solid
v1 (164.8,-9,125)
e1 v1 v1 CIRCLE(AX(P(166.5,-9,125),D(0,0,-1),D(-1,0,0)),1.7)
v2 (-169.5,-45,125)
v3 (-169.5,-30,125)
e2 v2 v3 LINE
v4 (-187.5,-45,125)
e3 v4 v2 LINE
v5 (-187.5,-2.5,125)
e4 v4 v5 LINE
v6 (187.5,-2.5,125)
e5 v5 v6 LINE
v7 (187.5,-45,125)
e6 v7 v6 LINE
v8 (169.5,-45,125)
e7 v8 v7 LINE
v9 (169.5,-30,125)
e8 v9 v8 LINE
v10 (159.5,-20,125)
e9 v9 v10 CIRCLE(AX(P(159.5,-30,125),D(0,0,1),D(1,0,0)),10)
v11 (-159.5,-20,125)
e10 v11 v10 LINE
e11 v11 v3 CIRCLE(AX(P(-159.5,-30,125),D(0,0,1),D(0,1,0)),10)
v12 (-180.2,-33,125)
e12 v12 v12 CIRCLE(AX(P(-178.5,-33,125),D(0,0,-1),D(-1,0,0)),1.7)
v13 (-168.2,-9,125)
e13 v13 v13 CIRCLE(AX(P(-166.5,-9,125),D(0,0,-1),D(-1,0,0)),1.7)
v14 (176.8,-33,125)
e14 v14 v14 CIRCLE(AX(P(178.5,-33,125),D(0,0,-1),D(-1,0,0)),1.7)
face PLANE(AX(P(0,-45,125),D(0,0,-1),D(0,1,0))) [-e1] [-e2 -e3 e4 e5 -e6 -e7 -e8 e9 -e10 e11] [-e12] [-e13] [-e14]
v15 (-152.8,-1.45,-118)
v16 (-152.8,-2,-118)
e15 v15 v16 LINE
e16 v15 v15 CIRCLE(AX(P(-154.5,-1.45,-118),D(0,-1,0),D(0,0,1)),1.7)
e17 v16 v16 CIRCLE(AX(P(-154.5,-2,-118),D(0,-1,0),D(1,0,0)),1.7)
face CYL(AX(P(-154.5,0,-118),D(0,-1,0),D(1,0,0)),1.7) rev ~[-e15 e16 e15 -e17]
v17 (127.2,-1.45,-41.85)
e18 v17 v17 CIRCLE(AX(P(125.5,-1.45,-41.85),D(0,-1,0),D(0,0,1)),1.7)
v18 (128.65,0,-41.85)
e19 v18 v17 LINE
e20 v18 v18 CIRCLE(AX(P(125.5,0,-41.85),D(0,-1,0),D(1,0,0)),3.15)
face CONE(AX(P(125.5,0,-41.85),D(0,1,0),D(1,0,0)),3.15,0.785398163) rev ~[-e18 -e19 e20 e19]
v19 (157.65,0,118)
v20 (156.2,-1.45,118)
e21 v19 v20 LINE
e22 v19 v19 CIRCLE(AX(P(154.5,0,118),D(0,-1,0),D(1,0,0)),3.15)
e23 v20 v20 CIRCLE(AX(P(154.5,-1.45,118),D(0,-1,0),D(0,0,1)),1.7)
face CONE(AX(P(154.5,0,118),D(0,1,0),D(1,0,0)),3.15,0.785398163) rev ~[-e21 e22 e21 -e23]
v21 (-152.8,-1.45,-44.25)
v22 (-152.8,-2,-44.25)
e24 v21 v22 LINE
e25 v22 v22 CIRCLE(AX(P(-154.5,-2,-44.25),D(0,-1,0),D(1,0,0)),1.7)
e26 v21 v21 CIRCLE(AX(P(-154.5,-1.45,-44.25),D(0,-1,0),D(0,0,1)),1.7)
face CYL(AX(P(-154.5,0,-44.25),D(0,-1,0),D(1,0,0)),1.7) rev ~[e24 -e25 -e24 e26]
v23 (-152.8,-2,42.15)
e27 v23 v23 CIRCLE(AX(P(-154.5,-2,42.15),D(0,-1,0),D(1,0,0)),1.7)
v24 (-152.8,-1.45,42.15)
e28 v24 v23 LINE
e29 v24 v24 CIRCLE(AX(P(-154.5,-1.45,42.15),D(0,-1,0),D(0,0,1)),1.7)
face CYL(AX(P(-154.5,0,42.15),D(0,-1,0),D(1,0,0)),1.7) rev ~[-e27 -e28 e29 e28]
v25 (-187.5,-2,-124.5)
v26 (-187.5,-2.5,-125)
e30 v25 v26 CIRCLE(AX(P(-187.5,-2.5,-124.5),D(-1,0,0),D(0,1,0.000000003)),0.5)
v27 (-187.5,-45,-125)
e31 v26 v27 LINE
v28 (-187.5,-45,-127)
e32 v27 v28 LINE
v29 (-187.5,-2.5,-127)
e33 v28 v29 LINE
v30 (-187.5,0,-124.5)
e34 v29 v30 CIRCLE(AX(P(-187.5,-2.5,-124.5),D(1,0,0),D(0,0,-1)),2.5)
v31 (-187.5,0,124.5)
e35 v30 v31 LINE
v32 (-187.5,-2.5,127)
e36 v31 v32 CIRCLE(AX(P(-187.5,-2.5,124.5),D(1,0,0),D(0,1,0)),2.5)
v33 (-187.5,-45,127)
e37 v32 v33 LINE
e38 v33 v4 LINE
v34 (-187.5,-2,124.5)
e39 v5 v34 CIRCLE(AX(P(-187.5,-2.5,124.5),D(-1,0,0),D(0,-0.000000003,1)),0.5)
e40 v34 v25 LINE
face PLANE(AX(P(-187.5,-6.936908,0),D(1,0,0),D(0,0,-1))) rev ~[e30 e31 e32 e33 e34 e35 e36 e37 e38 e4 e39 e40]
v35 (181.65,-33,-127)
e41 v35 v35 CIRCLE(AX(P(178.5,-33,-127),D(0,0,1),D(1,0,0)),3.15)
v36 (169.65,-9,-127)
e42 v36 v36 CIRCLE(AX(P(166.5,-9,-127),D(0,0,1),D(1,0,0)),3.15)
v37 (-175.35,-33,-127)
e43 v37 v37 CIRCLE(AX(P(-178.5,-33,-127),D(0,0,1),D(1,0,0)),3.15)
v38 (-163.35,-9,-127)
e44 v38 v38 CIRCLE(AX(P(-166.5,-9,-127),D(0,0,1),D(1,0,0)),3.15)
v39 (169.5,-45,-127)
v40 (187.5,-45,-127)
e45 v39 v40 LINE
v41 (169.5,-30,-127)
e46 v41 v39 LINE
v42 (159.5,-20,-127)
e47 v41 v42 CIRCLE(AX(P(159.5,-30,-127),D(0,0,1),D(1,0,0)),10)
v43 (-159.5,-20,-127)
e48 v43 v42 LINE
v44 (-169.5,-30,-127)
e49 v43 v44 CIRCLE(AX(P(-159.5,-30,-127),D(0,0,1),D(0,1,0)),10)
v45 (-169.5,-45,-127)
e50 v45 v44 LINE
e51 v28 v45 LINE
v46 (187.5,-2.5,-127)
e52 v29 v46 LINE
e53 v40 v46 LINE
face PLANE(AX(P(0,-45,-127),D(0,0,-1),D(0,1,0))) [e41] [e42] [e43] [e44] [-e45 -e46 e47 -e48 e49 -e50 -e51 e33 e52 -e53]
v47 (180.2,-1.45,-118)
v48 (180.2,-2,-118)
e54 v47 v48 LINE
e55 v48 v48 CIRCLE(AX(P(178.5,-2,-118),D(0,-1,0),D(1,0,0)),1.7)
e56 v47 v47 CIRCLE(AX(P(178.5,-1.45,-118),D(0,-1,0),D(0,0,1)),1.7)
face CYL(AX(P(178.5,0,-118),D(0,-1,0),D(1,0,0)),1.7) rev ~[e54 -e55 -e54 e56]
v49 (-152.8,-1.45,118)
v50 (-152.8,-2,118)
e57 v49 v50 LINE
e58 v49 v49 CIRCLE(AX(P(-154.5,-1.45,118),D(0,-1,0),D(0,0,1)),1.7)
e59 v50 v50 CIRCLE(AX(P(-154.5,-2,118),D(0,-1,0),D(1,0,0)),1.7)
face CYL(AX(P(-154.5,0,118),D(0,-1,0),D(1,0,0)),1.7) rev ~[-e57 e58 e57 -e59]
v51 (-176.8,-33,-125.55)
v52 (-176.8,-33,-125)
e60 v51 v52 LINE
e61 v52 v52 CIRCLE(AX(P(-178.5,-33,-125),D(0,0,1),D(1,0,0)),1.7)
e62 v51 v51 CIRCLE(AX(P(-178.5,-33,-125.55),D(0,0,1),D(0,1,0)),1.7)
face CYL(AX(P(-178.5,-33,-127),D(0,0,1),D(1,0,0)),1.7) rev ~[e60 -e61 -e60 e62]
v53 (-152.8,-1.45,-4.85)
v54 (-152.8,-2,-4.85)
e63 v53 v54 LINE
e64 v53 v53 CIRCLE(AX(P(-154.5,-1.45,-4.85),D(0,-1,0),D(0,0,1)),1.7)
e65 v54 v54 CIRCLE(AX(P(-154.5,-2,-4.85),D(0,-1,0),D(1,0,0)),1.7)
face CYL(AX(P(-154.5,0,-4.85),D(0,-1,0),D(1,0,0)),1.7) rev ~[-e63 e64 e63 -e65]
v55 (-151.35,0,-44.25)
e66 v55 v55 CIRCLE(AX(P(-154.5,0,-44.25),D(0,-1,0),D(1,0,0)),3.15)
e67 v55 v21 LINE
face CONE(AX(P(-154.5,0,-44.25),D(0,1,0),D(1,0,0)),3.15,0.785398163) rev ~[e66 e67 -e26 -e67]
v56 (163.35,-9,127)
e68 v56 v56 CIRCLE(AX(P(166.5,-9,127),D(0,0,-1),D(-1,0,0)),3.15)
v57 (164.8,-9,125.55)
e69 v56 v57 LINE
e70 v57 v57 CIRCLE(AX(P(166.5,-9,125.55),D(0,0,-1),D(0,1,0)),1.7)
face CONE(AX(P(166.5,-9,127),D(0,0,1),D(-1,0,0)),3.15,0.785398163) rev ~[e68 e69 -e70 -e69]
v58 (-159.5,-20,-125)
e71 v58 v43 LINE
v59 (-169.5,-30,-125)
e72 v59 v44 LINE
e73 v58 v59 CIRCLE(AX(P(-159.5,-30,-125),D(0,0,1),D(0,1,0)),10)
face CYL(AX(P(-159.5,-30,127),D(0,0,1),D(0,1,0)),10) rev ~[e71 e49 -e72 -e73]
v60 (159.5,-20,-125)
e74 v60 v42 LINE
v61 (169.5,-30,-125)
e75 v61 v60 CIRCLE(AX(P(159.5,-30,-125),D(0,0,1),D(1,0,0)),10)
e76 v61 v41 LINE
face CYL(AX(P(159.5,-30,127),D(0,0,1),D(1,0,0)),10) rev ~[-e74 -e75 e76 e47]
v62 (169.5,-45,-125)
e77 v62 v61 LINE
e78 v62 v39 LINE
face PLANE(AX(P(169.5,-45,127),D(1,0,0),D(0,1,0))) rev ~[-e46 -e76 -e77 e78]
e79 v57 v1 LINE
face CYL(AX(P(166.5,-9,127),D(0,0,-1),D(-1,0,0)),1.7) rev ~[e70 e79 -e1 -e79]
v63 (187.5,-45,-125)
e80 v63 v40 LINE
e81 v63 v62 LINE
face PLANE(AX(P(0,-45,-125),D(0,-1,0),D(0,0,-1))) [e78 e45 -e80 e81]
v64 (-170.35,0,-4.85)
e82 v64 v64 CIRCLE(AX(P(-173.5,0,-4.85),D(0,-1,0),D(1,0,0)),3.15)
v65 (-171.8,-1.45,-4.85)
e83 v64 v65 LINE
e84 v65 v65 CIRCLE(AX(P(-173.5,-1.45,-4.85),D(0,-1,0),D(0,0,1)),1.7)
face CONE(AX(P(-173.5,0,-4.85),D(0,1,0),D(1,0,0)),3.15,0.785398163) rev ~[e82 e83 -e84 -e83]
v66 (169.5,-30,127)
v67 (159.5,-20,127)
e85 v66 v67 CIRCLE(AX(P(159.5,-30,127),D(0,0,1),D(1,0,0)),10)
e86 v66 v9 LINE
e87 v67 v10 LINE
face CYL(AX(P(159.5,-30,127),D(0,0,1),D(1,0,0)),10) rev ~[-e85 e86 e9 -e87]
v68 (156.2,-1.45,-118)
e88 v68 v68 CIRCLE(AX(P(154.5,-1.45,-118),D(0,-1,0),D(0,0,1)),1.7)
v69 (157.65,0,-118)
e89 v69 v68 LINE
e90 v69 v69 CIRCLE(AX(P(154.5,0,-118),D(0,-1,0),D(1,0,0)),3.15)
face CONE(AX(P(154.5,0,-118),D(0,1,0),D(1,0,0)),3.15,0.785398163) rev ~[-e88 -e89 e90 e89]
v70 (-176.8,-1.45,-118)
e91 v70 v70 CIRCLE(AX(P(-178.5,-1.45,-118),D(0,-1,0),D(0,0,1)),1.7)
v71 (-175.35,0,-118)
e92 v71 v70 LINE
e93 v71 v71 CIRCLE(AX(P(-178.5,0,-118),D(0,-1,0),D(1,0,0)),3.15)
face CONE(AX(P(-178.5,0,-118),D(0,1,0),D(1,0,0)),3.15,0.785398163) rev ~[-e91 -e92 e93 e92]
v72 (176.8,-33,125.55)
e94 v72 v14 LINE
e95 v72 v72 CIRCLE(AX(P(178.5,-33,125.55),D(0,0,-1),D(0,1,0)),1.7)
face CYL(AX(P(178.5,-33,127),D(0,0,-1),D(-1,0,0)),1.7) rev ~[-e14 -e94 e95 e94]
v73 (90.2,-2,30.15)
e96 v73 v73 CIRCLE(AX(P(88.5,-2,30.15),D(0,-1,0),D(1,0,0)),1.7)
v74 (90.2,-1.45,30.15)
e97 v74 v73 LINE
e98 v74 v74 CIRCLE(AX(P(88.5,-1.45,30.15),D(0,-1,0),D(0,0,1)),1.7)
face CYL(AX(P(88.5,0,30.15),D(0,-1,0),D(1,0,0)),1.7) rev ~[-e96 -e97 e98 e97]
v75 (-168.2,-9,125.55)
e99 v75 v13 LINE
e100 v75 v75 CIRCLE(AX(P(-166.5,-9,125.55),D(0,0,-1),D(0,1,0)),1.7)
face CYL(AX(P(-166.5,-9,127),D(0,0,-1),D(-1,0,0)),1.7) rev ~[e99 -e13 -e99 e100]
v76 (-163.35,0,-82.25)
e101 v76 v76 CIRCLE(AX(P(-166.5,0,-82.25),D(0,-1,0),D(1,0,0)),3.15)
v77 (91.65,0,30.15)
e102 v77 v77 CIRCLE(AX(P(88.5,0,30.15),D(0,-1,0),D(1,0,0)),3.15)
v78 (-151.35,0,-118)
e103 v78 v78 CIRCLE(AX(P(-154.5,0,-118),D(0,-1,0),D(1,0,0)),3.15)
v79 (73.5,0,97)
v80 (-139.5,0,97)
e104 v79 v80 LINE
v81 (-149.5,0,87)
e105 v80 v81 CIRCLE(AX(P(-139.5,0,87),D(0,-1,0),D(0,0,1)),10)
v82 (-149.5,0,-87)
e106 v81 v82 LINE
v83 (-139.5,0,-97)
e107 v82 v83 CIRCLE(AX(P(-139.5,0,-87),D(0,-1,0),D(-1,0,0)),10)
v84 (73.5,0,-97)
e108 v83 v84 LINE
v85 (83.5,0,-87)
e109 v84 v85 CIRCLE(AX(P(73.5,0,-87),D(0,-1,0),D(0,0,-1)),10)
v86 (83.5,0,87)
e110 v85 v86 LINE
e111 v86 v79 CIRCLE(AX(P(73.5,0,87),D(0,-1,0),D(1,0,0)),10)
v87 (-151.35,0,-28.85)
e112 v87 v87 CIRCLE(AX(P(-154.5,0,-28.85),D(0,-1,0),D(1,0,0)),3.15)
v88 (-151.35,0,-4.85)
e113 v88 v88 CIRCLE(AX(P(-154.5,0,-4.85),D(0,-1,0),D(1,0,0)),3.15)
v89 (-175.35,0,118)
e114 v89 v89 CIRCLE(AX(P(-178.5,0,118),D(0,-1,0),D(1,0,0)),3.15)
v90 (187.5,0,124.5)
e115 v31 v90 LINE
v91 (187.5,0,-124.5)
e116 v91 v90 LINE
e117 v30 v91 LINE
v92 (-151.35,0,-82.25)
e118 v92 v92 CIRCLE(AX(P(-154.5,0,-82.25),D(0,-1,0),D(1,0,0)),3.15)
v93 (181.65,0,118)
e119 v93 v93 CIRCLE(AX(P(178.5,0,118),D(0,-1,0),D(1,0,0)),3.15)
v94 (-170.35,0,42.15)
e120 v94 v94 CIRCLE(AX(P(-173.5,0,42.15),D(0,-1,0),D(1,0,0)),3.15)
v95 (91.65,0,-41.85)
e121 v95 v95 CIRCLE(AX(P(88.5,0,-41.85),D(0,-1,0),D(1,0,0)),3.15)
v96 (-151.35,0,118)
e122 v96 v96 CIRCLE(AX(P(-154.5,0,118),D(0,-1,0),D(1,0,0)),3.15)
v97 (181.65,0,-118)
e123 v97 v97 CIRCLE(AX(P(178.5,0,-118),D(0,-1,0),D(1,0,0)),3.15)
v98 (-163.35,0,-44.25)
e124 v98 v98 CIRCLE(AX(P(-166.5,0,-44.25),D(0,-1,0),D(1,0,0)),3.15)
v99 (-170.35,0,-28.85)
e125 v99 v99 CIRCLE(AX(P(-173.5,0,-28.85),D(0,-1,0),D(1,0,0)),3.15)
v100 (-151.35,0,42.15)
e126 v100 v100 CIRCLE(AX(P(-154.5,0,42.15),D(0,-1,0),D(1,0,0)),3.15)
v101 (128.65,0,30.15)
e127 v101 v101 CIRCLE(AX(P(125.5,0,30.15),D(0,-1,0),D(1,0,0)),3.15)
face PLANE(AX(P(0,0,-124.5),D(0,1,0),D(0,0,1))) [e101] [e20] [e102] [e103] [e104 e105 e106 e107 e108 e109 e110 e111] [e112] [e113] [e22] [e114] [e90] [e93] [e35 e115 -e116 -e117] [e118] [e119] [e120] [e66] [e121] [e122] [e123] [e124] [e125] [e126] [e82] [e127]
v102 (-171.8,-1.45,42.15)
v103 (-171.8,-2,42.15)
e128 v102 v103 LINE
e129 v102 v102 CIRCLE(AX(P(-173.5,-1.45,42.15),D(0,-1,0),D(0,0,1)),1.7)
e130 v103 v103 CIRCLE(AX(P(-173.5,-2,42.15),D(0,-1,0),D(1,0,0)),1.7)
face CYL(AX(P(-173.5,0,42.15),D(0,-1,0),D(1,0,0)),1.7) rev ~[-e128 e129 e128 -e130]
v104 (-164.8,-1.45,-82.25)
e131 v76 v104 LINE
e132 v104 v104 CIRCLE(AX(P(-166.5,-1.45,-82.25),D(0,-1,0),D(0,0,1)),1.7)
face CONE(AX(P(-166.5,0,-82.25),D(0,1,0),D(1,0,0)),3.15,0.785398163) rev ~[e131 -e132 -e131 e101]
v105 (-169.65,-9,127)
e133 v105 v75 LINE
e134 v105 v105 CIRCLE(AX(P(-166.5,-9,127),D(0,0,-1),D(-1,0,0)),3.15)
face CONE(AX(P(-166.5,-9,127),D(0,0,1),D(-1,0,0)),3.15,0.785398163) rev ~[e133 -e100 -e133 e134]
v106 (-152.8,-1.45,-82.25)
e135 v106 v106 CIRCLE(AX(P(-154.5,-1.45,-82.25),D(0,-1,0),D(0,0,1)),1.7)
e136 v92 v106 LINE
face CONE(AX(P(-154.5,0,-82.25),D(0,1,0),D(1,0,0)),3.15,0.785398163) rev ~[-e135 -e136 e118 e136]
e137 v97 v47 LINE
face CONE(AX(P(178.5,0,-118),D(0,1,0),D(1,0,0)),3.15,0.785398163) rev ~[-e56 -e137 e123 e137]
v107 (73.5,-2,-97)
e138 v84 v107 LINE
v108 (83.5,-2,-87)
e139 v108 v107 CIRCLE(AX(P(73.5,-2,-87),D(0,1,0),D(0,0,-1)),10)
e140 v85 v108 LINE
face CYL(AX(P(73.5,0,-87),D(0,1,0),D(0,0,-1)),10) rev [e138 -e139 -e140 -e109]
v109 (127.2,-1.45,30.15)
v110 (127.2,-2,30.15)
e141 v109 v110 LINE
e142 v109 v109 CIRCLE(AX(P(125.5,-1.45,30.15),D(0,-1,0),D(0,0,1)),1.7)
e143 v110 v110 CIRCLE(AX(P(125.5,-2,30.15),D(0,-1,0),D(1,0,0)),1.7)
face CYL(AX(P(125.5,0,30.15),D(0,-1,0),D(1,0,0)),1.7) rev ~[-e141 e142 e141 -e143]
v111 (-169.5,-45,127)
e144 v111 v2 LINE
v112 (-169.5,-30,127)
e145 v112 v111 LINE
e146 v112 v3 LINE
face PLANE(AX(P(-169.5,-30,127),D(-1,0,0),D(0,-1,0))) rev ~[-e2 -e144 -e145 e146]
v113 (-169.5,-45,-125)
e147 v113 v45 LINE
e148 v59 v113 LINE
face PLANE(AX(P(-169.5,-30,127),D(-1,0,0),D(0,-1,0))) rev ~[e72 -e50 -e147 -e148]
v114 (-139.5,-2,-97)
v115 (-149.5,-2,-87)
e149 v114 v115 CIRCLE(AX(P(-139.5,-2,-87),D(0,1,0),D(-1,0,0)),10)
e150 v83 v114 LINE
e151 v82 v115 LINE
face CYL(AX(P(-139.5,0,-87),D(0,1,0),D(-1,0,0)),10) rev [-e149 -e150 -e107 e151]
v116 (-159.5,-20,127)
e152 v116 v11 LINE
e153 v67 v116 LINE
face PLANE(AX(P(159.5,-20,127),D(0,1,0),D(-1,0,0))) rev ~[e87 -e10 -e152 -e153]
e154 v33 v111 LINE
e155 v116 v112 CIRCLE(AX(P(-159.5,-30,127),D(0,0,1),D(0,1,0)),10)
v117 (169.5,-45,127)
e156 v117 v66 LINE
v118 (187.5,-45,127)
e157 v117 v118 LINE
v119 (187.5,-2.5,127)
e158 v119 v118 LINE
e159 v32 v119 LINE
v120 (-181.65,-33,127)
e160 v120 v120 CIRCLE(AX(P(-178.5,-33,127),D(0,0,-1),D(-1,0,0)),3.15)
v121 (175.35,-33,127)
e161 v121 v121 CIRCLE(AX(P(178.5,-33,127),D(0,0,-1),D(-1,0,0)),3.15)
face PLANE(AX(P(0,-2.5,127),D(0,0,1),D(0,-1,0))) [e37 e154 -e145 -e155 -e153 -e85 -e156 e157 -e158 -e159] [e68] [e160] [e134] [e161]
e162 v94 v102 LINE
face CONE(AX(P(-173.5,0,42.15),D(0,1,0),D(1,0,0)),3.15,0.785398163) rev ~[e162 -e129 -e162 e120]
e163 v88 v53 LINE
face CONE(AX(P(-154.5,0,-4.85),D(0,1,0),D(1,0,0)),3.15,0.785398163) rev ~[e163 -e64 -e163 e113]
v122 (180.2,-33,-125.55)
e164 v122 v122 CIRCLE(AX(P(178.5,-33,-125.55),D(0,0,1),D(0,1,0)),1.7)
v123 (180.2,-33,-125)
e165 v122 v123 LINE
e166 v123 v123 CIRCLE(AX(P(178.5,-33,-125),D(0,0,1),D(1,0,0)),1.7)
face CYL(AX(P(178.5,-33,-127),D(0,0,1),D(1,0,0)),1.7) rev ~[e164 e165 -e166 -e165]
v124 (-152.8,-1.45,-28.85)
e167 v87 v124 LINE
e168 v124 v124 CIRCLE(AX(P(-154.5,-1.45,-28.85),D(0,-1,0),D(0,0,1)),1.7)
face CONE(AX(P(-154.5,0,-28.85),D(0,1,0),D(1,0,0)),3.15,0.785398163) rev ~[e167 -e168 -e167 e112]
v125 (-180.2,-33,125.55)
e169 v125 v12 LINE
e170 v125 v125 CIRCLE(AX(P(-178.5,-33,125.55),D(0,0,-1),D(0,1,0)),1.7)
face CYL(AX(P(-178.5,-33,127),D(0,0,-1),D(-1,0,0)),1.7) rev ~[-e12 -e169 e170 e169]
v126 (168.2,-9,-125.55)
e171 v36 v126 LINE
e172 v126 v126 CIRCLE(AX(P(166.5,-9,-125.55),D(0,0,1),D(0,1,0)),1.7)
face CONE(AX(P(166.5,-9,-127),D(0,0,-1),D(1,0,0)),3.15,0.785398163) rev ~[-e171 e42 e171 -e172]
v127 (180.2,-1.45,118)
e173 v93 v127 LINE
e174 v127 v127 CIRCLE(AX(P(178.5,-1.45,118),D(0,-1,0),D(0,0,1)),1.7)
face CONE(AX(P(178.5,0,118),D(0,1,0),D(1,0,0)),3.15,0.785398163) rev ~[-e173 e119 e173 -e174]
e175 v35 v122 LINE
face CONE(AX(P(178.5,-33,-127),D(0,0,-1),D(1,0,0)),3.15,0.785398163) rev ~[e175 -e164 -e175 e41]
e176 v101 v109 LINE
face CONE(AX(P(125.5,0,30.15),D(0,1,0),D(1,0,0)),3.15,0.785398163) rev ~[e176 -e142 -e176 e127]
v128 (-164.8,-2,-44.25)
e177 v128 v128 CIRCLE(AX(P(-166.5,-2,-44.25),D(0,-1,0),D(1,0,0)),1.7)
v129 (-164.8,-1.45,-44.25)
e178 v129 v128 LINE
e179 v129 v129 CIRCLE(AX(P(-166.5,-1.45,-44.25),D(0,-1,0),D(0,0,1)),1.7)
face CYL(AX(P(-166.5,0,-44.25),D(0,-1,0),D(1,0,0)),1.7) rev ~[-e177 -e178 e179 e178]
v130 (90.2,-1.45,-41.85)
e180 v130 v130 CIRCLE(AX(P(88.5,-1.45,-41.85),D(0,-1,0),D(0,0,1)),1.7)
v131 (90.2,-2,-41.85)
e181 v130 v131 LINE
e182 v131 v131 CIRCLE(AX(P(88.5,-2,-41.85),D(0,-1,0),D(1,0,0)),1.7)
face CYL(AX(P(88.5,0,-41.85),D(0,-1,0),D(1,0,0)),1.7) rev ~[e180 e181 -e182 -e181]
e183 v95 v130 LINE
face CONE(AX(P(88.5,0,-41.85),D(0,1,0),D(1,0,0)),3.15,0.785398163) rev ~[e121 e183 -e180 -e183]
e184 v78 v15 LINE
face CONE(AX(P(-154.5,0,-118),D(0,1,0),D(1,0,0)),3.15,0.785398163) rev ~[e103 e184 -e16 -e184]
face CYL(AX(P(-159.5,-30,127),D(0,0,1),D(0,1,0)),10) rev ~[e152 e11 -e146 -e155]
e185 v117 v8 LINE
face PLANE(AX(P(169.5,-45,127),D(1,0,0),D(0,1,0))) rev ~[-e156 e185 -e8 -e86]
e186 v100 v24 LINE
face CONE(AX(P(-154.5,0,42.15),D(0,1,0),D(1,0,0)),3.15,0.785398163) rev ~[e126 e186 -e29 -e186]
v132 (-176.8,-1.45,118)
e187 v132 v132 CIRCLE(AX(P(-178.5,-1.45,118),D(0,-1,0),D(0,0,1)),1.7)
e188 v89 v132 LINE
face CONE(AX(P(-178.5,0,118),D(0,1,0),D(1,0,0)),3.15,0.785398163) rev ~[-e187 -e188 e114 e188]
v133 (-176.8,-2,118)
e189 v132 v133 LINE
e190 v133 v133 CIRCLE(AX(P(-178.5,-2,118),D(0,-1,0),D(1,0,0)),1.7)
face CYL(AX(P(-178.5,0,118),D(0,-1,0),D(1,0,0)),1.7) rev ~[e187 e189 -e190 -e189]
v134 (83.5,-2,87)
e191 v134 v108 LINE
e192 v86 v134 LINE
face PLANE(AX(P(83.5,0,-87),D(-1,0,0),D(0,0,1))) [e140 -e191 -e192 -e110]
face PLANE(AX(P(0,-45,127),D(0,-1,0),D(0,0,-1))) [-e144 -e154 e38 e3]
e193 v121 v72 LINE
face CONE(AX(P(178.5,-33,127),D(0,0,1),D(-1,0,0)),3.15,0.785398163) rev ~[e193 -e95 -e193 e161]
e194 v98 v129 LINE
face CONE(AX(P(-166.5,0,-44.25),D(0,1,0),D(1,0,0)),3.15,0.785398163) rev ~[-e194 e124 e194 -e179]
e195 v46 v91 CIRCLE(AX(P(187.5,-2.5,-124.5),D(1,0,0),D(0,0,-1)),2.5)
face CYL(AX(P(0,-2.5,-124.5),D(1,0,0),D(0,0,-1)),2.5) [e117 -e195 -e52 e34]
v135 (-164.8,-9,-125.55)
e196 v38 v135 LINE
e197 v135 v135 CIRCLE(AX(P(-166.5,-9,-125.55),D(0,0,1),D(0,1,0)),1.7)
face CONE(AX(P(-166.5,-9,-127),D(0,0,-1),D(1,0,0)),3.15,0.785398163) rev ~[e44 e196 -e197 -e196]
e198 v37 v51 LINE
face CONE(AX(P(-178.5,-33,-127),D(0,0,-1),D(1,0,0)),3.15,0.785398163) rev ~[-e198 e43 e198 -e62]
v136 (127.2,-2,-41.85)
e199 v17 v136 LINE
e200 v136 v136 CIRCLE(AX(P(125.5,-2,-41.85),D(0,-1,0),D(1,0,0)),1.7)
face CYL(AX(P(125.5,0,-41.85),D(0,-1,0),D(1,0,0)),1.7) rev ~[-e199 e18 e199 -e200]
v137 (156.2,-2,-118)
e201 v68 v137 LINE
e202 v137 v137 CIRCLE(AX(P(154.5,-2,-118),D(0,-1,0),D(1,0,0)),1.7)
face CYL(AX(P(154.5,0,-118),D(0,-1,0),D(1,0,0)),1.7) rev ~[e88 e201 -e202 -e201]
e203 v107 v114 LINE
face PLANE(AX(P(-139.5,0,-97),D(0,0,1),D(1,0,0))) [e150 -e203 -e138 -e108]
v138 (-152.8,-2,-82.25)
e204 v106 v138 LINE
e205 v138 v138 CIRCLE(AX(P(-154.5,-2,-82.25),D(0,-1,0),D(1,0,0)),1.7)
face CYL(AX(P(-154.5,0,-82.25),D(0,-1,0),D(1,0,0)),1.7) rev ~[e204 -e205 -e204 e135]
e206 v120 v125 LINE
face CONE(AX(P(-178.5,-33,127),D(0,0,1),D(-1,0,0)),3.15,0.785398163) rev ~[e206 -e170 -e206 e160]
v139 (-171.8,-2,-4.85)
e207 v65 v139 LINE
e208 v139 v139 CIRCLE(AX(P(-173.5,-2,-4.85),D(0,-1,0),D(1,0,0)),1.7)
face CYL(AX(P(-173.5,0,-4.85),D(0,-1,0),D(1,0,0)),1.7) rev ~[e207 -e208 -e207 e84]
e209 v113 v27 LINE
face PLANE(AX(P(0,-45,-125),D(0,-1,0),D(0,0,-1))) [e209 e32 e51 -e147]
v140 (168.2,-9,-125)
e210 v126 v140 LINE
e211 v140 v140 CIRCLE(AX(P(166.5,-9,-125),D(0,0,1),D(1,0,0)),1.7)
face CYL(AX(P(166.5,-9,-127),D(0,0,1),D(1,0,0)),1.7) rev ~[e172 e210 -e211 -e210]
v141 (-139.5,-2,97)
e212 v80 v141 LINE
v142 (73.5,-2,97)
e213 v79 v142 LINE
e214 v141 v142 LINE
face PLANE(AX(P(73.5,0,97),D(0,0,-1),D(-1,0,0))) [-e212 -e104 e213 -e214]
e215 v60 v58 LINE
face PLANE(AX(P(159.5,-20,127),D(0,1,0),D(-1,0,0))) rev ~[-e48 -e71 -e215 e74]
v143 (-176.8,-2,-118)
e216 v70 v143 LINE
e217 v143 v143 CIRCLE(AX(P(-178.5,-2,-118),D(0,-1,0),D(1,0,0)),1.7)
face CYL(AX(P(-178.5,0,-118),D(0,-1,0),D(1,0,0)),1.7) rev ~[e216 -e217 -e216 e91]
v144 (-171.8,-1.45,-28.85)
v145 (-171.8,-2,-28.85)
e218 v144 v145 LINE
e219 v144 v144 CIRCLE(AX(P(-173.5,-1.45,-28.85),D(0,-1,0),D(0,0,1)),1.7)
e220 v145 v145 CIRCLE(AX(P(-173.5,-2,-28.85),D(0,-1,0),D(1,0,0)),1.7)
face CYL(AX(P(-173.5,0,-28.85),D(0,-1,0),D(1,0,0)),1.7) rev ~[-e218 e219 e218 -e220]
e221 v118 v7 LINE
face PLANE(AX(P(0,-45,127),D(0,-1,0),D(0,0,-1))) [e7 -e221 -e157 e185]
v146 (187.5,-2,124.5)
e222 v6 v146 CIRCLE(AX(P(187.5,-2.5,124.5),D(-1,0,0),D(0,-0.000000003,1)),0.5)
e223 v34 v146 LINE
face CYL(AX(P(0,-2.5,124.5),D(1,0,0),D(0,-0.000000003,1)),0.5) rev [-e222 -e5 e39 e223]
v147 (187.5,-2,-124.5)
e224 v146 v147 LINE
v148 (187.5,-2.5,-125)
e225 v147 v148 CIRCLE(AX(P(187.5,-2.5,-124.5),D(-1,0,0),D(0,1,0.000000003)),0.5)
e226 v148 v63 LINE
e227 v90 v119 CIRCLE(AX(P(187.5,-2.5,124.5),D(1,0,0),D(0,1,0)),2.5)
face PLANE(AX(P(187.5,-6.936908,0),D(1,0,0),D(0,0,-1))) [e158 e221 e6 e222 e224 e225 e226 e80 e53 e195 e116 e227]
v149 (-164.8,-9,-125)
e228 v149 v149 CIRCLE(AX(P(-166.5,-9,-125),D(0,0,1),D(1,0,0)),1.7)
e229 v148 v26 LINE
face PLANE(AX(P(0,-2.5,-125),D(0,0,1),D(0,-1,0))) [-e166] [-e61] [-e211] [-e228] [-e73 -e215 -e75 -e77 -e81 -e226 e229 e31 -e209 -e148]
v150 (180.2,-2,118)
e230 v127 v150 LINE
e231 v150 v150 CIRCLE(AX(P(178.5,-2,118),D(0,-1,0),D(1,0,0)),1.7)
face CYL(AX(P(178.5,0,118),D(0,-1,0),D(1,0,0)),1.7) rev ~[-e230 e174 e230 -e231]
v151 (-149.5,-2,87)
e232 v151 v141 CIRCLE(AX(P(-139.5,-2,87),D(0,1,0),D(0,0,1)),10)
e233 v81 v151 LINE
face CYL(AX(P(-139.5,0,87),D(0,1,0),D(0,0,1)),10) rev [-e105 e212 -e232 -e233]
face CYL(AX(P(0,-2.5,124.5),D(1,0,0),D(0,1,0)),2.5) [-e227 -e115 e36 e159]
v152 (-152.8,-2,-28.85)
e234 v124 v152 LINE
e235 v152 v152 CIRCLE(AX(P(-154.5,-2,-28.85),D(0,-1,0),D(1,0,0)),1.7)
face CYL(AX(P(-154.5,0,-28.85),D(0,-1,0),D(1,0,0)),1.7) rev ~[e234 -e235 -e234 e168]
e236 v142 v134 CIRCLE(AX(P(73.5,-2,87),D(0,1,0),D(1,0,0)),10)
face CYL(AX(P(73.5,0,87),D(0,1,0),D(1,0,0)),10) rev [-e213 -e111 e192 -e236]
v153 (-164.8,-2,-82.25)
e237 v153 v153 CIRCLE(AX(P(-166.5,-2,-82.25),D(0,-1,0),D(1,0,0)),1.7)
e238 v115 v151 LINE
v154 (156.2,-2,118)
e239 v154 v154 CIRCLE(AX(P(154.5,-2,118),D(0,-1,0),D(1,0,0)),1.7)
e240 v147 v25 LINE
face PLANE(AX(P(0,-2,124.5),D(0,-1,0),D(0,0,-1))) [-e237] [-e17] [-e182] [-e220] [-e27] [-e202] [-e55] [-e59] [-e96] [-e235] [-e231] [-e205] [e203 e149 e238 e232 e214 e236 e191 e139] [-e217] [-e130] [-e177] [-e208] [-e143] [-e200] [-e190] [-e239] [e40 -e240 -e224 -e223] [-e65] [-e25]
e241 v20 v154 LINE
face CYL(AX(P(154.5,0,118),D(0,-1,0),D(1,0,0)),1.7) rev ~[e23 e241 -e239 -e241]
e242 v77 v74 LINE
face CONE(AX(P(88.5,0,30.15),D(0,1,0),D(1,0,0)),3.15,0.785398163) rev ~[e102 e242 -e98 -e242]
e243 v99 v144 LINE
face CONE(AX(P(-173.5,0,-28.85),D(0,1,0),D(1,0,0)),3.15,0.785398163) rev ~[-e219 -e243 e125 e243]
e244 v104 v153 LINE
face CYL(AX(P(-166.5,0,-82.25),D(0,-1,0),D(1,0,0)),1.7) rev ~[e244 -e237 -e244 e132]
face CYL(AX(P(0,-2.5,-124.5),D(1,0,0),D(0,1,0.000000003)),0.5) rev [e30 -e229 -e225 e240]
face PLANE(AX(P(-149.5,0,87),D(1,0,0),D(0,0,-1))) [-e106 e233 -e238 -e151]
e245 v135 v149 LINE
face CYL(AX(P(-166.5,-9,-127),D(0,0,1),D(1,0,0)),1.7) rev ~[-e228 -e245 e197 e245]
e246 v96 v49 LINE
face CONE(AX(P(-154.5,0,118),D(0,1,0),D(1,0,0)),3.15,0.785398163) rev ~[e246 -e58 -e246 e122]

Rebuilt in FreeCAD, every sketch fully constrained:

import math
import FreeCAD as App
import Part
import Sketcher

V = App.Vector
Q = App.Units.Quantity

doc = App.newDocument("Part")
body = doc.addObject("PartDesign::Body", "Body")

sketch1 = body.newObject("Sketcher::SketchObject", "Sketch")
sketch1.AttachmentSupport = (doc.getObject("YZ_Plane"), [""])
sketch1.MapMode = "FlatFace"
sketch1.addGeometry([
    Part.LineSegment(V(-45, -125, 0), V(-45, -127, 0)),
    Part.LineSegment(V(-45, -127, 0), V(-2.5, -127, 0)),
    Part.ArcOfCircle(Part.Circle(V(-2.5, -124.5, 0), V(0, 0, 1), 2.5), math.radians(-90), math.radians(0)),
    Part.LineSegment(V(0, -124.5, 0), V(0, 124.5, 0)),
    Part.ArcOfCircle(Part.Circle(V(-2.5, 124.5, 0), V(0, 0, 1), 2.5), math.radians(0), math.radians(90)),
    Part.LineSegment(V(-2.5, 127, 0), V(-45, 127, 0)),
    Part.LineSegment(V(-45, 127, 0), V(-45, 125, 0)),
    Part.LineSegment(V(-45, 125, 0), V(-2.5, 125, 0)),
    Part.ArcOfCircle(Part.Circle(V(-2.5, 124.5, 0), V(0, 0, 1), 0.5), math.radians(0), math.radians(90)),
    Part.LineSegment(V(-2, 124.5, 0), V(-2, -124.5, 0)),
    Part.ArcOfCircle(Part.Circle(V(-2.5, -124.5, 0), V(0, 0, 1), 0.5), math.radians(-90), math.radians(0)),
    Part.LineSegment(V(-2.5, -125, 0), V(-45, -125, 0)),
], False)
sketch1.addConstraint([
    Sketcher.Constraint("Coincident", 0, 2, 1, 1),
    Sketcher.Constraint("Tangent", 1, 2, 2, 1),
    Sketcher.Constraint("Tangent", 2, 2, 3, 1),
    Sketcher.Constraint("Tangent", 3, 2, 4, 1),
    Sketcher.Constraint("Tangent", 4, 2, 5, 1),
    Sketcher.Constraint("Coincident", 5, 2, 6, 1),
    Sketcher.Constraint("Coincident", 6, 2, 7, 1),
    Sketcher.Constraint("Tangent", 7, 2, 8, 2),
    Sketcher.Constraint("Tangent", 8, 1, 9, 1),
    Sketcher.Constraint("Tangent", 9, 2, 10, 2),
    Sketcher.Constraint("Tangent", 10, 1, 11, 1),
    Sketcher.Constraint("Coincident", 11, 2, 0, 1),
    Sketcher.Constraint("Vertical", 0),
    Sketcher.Constraint("Horizontal", 1),
    Sketcher.Constraint("Vertical", 3),
    Sketcher.Constraint("Horizontal", 5),
    Sketcher.Constraint("Vertical", 6),
    Sketcher.Constraint("Horizontal", 7),
    Sketcher.Constraint("Vertical", 9),
    Sketcher.Constraint("Horizontal", 11),
    Sketcher.Constraint("Coincident", 8, 3, 4, 3),
    Sketcher.Constraint("Coincident", 10, 3, 2, 3),
    Sketcher.Constraint("Equal", 2, 4),
    Sketcher.Constraint("Symmetric", 2, 2, 3, 2, -1, 1),
    Sketcher.Constraint("Vertical", 0, 2, 5, 2),
    Sketcher.Constraint("Radius", 2, Q("2.5 mm")),
    Sketcher.Constraint("Radius", 8, Q("0.5 mm")),
    Sketcher.Constraint("DistanceY", 3, 1, 3, 2, Q("249 mm")),
    Sketcher.Constraint("DistanceX", 1, 1, 1, 2, Q("42.5 mm")),
])
pad1 = body.newObject("PartDesign::Pad", "Pad")
pad1.Profile = sketch1
pad1.Length = 375
pad1.Midplane = True

sketch2 = body.newObject("Sketcher::SketchObject", "Sketch001")
sketch2.AttachmentSupport = (doc.getObject("XY_Plane"), [""])
sketch2.MapMode = "FlatFace"
sketch2.AttachmentOffset = App.Placement(V(0, 0, 127), App.Rotation())
sketch2.addGeometry([
    Part.LineSegment(V(-169.5, -45, 0), V(169.5, -45, 0)),
    Part.LineSegment(V(169.5, -45, 0), V(169.5, -30, 0)),
    Part.ArcOfCircle(Part.Circle(V(159.5, -30, 0), V(0, 0, 1), 10), math.radians(0), math.radians(90)),
    Part.LineSegment(V(159.5, -20, 0), V(-159.5, -20, 0)),
    Part.ArcOfCircle(Part.Circle(V(-159.5, -30, 0), V(0, 0, 1), 10), math.radians(90), math.radians(180)),
    Part.LineSegment(V(-169.5, -30, 0), V(-169.5, -45, 0)),
], False)
sketch2.addConstraint([
    Sketcher.Constraint("Coincident", 0, 2, 1, 1),
    Sketcher.Constraint("Tangent", 1, 2, 2, 1),
    Sketcher.Constraint("Tangent", 2, 2, 3, 1),
    Sketcher.Constraint("Tangent", 3, 2, 4, 1),
    Sketcher.Constraint("Tangent", 4, 2, 5, 1),
    Sketcher.Constraint("Coincident", 5, 2, 0, 1),
    Sketcher.Constraint("Horizontal", 0),
    Sketcher.Constraint("Vertical", 1),
    Sketcher.Constraint("Horizontal", 3),
    Sketcher.Constraint("Vertical", 5),
    Sketcher.Constraint("Equal", 2, 4),
    Sketcher.Constraint("Radius", 2, Q("10 mm")),
    Sketcher.Constraint("DistanceX", 0, 1, 0, 2, Q("339 mm")),
    Sketcher.Constraint("DistanceY", 1, 1, 1, 2, Q("15 mm")),
    Sketcher.Constraint("DistanceY", 2, 3, -1, 1, Q("30 mm")),
    Sketcher.Constraint("DistanceX", -1, 1, 2, 3, Q("159.5 mm")),
])
pocket1 = body.newObject("PartDesign::Pocket", "Pocket")
pocket1.Profile = sketch2
pocket1.Type = "ThroughAll"

sketch3 = body.newObject("Sketcher::SketchObject", "Sketch002")
sketch3.AttachmentSupport = (doc.getObject("XZ_Plane"), [""])
sketch3.MapMode = "FlatFace"
sketch3.addGeometry([
    Part.LineSegment(V(73.5, -97, 0), V(-139.5, -97, 0)),
    Part.ArcOfCircle(Part.Circle(V(-139.5, -87, 0), V(0, 0, 1), 10), math.radians(180), math.radians(270)),
    Part.LineSegment(V(-149.5, -87, 0), V(-149.5, 87, 0)),
    Part.ArcOfCircle(Part.Circle(V(-139.5, 87, 0), V(0, 0, 1), 10), math.radians(90), math.radians(180)),
    Part.LineSegment(V(-139.5, 97, 0), V(73.5, 97, 0)),
    Part.ArcOfCircle(Part.Circle(V(73.5, 87, 0), V(0, 0, 1), 10), math.radians(0), math.radians(90)),
    Part.LineSegment(V(83.5, 87, 0), V(83.5, -87, 0)),
    Part.ArcOfCircle(Part.Circle(V(73.5, -87, 0), V(0, 0, 1), 10), math.radians(-90), math.radians(0)),
], False)
sketch3.addConstraint([
    Sketcher.Constraint("Tangent", 0, 2, 1, 2),
    Sketcher.Constraint("Tangent", 1, 1, 2, 1),
    Sketcher.Constraint("Tangent", 2, 2, 3, 2),
    Sketcher.Constraint("Tangent", 3, 1, 4, 1),
    Sketcher.Constraint("Tangent", 4, 2, 5, 2),
    Sketcher.Constraint("Tangent", 5, 1, 6, 1),
    Sketcher.Constraint("Tangent", 6, 2, 7, 2),
    Sketcher.Constraint("Tangent", 7, 1, 0, 1),
    Sketcher.Constraint("Horizontal", 0),
    Sketcher.Constraint("Vertical", 2),
    Sketcher.Constraint("Horizontal", 4),
    Sketcher.Constraint("Vertical", 6),
    Sketcher.Constraint("Equal", 1, 3),
    Sketcher.Constraint("Equal", 3, 5),
    Sketcher.Constraint("Equal", 5, 7),
    Sketcher.Constraint("Radius", 1, Q("10 mm")),
    Sketcher.Constraint("DistanceX", 0, 2, 0, 1, Q("213 mm")),
    Sketcher.Constraint("DistanceY", 2, 1, 2, 2, Q("174 mm")),
    Sketcher.Constraint("DistanceY", 1, 3, -1, 1, Q("87 mm")),
    Sketcher.Constraint("DistanceX", 1, 3, -1, 1, Q("139.5 mm")),
])
pocket2 = body.newObject("PartDesign::Pocket", "Pocket001")
pocket2.Profile = sketch3
pocket2.Length = 10
pocket2.Reversed = True

sketch4 = body.newObject("Sketcher::SketchObject", "Sketch003")
sketch4.AttachmentSupport = (doc.getObject("XY_Plane"), [""])
sketch4.MapMode = "FlatFace"
sketch4.AttachmentOffset = App.Placement(V(0, 0, 127), App.Rotation())
sketch4.addGeometry([
    Part.Circle(V(-178.5, -33, 0), V(0, 0, 1), 1.5),
    Part.Circle(V(-166.5, -9, 0), V(0, 0, 1), 1.5),
    Part.Circle(V(166.5, -9, 0), V(0, 0, 1), 1.5),
    Part.Circle(V(178.5, -33, 0), V(0, 0, 1), 1.5),
], False)
sketch4.addConstraint([
    Sketcher.Constraint("Equal", 0, 1),
    Sketcher.Constraint("Equal", 1, 2),
    Sketcher.Constraint("Equal", 2, 3),
    Sketcher.Constraint("Symmetric", 1, 3, 2, 3, -2),
    Sketcher.Constraint("Symmetric", 0, 3, 3, 3, -2),
    Sketcher.Constraint("Diameter", 0, Q("3 mm")),
    Sketcher.Constraint("DistanceY", 0, 3, -1, 1, Q("33 mm")),
    Sketcher.Constraint("DistanceY", 1, 3, -1, 1, Q("9 mm")),
    Sketcher.Constraint("DistanceX", 0, 3, 1, 3, Q("12 mm")),
    Sketcher.Constraint("DistanceX", 1, 3, 2, 3, Q("333 mm")),
])
pocket3 = body.newObject("PartDesign::Pocket", "Pocket002")
pocket3.Profile = sketch4
pocket3.Type = "ThroughAll"

sketch5 = body.newObject("Sketcher::SketchObject", "Sketch004")
sketch5.AttachmentSupport = (doc.getObject("XZ_Plane"), [""])
sketch5.MapMode = "FlatFace"
sketch5.addGeometry([
    Part.Circle(V(-178.5, -118, 0), V(0, 0, 1), 1.5),
    Part.Circle(V(-154.5, -118, 0), V(0, 0, 1), 1.5),
    Part.Circle(V(154.5, -118, 0), V(0, 0, 1), 1.5),
    Part.Circle(V(178.5, -118, 0), V(0, 0, 1), 1.5),
    Part.Circle(V(178.5, 118, 0), V(0, 0, 1), 1.5),
    Part.Circle(V(154.5, 118, 0), V(0, 0, 1), 1.5),
    Part.Circle(V(-178.5, 118, 0), V(0, 0, 1), 1.5),
    Part.Circle(V(-154.5, 118, 0), V(0, 0, 1), 1.5),
    Part.Circle(V(88.5, -41.85, 0), V(0, 0, 1), 1.5),
    Part.Circle(V(88.5, 30.15, 0), V(0, 0, 1), 1.5),
    Part.Circle(V(125.5, -41.85, 0), V(0, 0, 1), 1.5),
    Part.Circle(V(125.5, 30.15, 0), V(0, 0, 1), 1.5),
    Part.Circle(V(-154.5, -28.85, 0), V(0, 0, 1), 1.5),
    Part.Circle(V(-173.5, -28.85, 0), V(0, 0, 1), 1.5),
    Part.Circle(V(-173.5, -4.85, 0), V(0, 0, 1), 1.5),
    Part.Circle(V(-154.5, -4.85, 0), V(0, 0, 1), 1.5),
    Part.Circle(V(-154.5, 42.15, 0), V(0, 0, 1), 1.5),
    Part.Circle(V(-173.5, 42.15, 0), V(0, 0, 1), 1.5),
    Part.Circle(V(-166.5, -82.25, 0), V(0, 0, 1), 1.5),
    Part.Circle(V(-154.5, -82.25, 0), V(0, 0, 1), 1.5),
    Part.Circle(V(-166.5, -44.25, 0), V(0, 0, 1), 1.5),
    Part.Circle(V(-154.5, -44.25, 0), V(0, 0, 1), 1.5),
], False)
sketch5.addConstraint([
    Sketcher.Constraint("Equal", 0, 1),
    Sketcher.Constraint("Equal", 1, 2),
    Sketcher.Constraint("Equal", 2, 3),
    Sketcher.Constraint("Equal", 3, 4),
    Sketcher.Constraint("Equal", 4, 5),
    Sketcher.Constraint("Equal", 5, 6),
    Sketcher.Constraint("Equal", 6, 7),
    Sketcher.Constraint("Equal", 7, 8),
    Sketcher.Constraint("Equal", 8, 9),
    Sketcher.Constraint("Equal", 9, 10),
    Sketcher.Constraint("Equal", 10, 11),
    Sketcher.Constraint("Equal", 11, 12),
    Sketcher.Constraint("Equal", 12, 13),
    Sketcher.Constraint("Equal", 13, 14),
    Sketcher.Constraint("Equal", 14, 15),
    Sketcher.Constraint("Equal", 15, 16),
    Sketcher.Constraint("Equal", 16, 17),
    Sketcher.Constraint("Equal", 17, 18),
    Sketcher.Constraint("Equal", 18, 19),
    Sketcher.Constraint("Equal", 19, 20),
    Sketcher.Constraint("Equal", 20, 21),
    Sketcher.Constraint("Symmetric", 0, 3, 4, 3, -1, 1),
    Sketcher.Constraint("Symmetric", 1, 3, 5, 3, -1, 1),
    Sketcher.Constraint("Symmetric", 3, 3, 6, 3, -1, 1),
    Sketcher.Constraint("Symmetric", 2, 3, 7, 3, -1, 1),
    Sketcher.Constraint("Symmetric", 1, 3, 2, 3, -2),
    Sketcher.Constraint("Symmetric", 0, 3, 3, 3, -2),
    Sketcher.Constraint("Horizontal", 0, 3, 1, 3),
    Sketcher.Constraint("Horizontal", 8, 3, 10, 3),
    Sketcher.Constraint("Horizontal", 9, 3, 11, 3),
    Sketcher.Constraint("Horizontal", 12, 3, 13, 3),
    Sketcher.Constraint("Horizontal", 14, 3, 15, 3),
    Sketcher.Constraint("Horizontal", 16, 3, 17, 3),
    Sketcher.Constraint("Horizontal", 18, 3, 19, 3),
    Sketcher.Constraint("Horizontal", 20, 3, 21, 3),
    Sketcher.Constraint("Vertical", 8, 3, 9, 3),
    Sketcher.Constraint("Vertical", 10, 3, 11, 3),
    Sketcher.Constraint("Vertical", 7, 3, 12, 3),
    Sketcher.Constraint("Vertical", 13, 3, 14, 3),
    Sketcher.Constraint("Vertical", 12, 3, 15, 3),
    Sketcher.Constraint("Vertical", 15, 3, 16, 3),
    Sketcher.Constraint("Vertical", 14, 3, 17, 3),
    Sketcher.Constraint("Vertical", 16, 3, 19, 3),
    Sketcher.Constraint("Vertical", 18, 3, 20, 3),
    Sketcher.Constraint("Vertical", 19, 3, 21, 3),
    Sketcher.Constraint("Diameter", 0, Q("3 mm")),
    Sketcher.Constraint("DistanceY", 0, 3, -1, 1, Q("118 mm")),
    Sketcher.Constraint("DistanceX", 0, 3, 1, 3, Q("24 mm")),
    Sketcher.Constraint("DistanceX", 1, 3, 2, 3, Q("309 mm")),
    Sketcher.Constraint("DistanceX", 8, 3, 2, 3, Q("66 mm")),
    Sketcher.Constraint("DistanceY", 8, 3, 9, 3, Q("72 mm")),
    Sketcher.Constraint("DistanceX", 8, 3, 10, 3, Q("37 mm")),
    Sketcher.Constraint("DistanceY", 8, 3, 12, 3, Q("13 mm")),
    Sketcher.Constraint("DistanceX", 13, 3, 12, 3, Q("19 mm")),
    Sketcher.Constraint("DistanceY", 13, 3, 14, 3, Q("24 mm")),
    Sketcher.Constraint("DistanceY", 15, 3, 16, 3, Q("47 mm")),
    Sketcher.Constraint("DistanceX", 0, 3, 18, 3, Q("12 mm")),
    Sketcher.Constraint("DistanceY", 18, 3, 20, 3, Q("38 mm")),
    Sketcher.Constraint("DistanceY", 18, 3, 13, 3, Q("53.4 mm")),
    Sketcher.Constraint("DistanceY", 8, 3, -1, 1, Q("41.85 mm")),
])
pocket4 = body.newObject("PartDesign::Pocket", "Pocket003")
pocket4.Profile = sketch5
pocket4.Length = 10
pocket4.Reversed = True

sketch6 = body.newObject("Sketcher::SketchObject", "Sketch005")
sketch6.AttachmentSupport = (doc.getObject("XZ_Plane"), [""])
sketch6.MapMode = "FlatFace"
sketch6.addGeometry([
    Part.Circle(V(-154.5, 118, 0), V(0, 0, 1), 1.7),
    Part.Circle(V(-178.5, 118, 0), V(0, 0, 1), 1.7),
    Part.Circle(V(-154.5, 42.15, 0), V(0, 0, 1), 1.7),
    Part.Circle(V(-173.5, 42.15, 0), V(0, 0, 1), 1.7),
    Part.Circle(V(-154.5, -4.85, 0), V(0, 0, 1), 1.7),
    Part.Circle(V(-173.5, -4.85, 0), V(0, 0, 1), 1.7),
    Part.Circle(V(-173.5, -28.85, 0), V(0, 0, 1), 1.7),
    Part.Circle(V(-154.5, -28.85, 0), V(0, 0, 1), 1.7),
    Part.Circle(V(-154.5, -44.25, 0), V(0, 0, 1), 1.7),
    Part.Circle(V(-166.5, -44.25, 0), V(0, 0, 1), 1.7),
    Part.Circle(V(-166.5, -82.25, 0), V(0, 0, 1), 1.7),
    Part.Circle(V(-154.5, -82.25, 0), V(0, 0, 1), 1.7),
    Part.Circle(V(-178.5, -118, 0), V(0, 0, 1), 1.7),
    Part.Circle(V(-154.5, -118, 0), V(0, 0, 1), 1.7),
    Part.Circle(V(154.5, -118, 0), V(0, 0, 1), 1.7),
    Part.Circle(V(178.5, -118, 0), V(0, 0, 1), 1.7),
    Part.Circle(V(125.5, -41.85, 0), V(0, 0, 1), 1.7),
    Part.Circle(V(88.5, -41.85, 0), V(0, 0, 1), 1.7),
    Part.Circle(V(125.5, 30.15, 0), V(0, 0, 1), 1.7),
    Part.Circle(V(88.5, 30.15, 0), V(0, 0, 1), 1.7),
    Part.Circle(V(178.5, 118, 0), V(0, 0, 1), 1.7),
    Part.Circle(V(154.5, 118, 0), V(0, 0, 1), 1.7),
], False)
sketch6.addConstraint([
    Sketcher.Constraint("Equal", 0, 1),
    Sketcher.Constraint("Equal", 1, 2),
    Sketcher.Constraint("Equal", 2, 3),
    Sketcher.Constraint("Equal", 3, 4),
    Sketcher.Constraint("Equal", 4, 5),
    Sketcher.Constraint("Equal", 5, 6),
    Sketcher.Constraint("Equal", 6, 7),
    Sketcher.Constraint("Equal", 7, 8),
    Sketcher.Constraint("Equal", 8, 9),
    Sketcher.Constraint("Equal", 9, 10),
    Sketcher.Constraint("Equal", 10, 11),
    Sketcher.Constraint("Equal", 11, 12),
    Sketcher.Constraint("Equal", 12, 13),
    Sketcher.Constraint("Equal", 13, 14),
    Sketcher.Constraint("Equal", 14, 15),
    Sketcher.Constraint("Equal", 15, 16),
    Sketcher.Constraint("Equal", 16, 17),
    Sketcher.Constraint("Equal", 17, 18),
    Sketcher.Constraint("Equal", 18, 19),
    Sketcher.Constraint("Equal", 19, 20),
    Sketcher.Constraint("Equal", 20, 21),
    Sketcher.Constraint("Symmetric", 0, 3, 14, 3, -1, 1),
    Sketcher.Constraint("Symmetric", 1, 3, 15, 3, -1, 1),
    Sketcher.Constraint("Symmetric", 12, 3, 20, 3, -1, 1),
    Sketcher.Constraint("Symmetric", 13, 3, 21, 3, -1, 1),
    Sketcher.Constraint("Symmetric", 13, 3, 14, 3, -2),
    Sketcher.Constraint("Symmetric", 12, 3, 15, 3, -2),
    Sketcher.Constraint("Horizontal", 0, 3, 1, 3),
    Sketcher.Constraint("Horizontal", 2, 3, 3, 3),
    Sketcher.Constraint("Horizontal", 4, 3, 5, 3),
    Sketcher.Constraint("Horizontal", 6, 3, 7, 3),
    Sketcher.Constraint("Horizontal", 8, 3, 9, 3),
    Sketcher.Constraint("Horizontal", 10, 3, 11, 3),
    Sketcher.Constraint("Horizontal", 16, 3, 17, 3),
    Sketcher.Constraint("Horizontal", 18, 3, 19, 3),
    Sketcher.Constraint("Vertical", 0, 3, 2, 3),
    Sketcher.Constraint("Vertical", 2, 3, 4, 3),
    Sketcher.Constraint("Vertical", 3, 3, 5, 3),
    Sketcher.Constraint("Vertical", 5, 3, 6, 3),
    Sketcher.Constraint("Vertical", 4, 3, 7, 3),
    Sketcher.Constraint("Vertical", 7, 3, 8, 3),
    Sketcher.Constraint("Vertical", 9, 3, 10, 3),
    Sketcher.Constraint("Vertical", 8, 3, 11, 3),
    Sketcher.Constraint("Vertical", 16, 3, 18, 3),
    Sketcher.Constraint("Vertical", 17, 3, 19, 3),
    Sketcher.Constraint("Diameter", 0, Q("3.4 mm")),
    Sketcher.Constraint("DistanceY", -1, 1, 0, 3, Q("118 mm")),
    Sketcher.Constraint("DistanceX", 1, 3, 0, 3, Q("24 mm")),
    Sketcher.Constraint("DistanceX", 3, 3, 2, 3, Q("19 mm")),
    Sketcher.Constraint("DistanceY", 4, 3, 2, 3, Q("47 mm")),
    Sketcher.Constraint("DistanceY", 6, 3, 5, 3, Q("24 mm")),
    Sketcher.Constraint("DistanceX", 9, 3, 8, 3, Q("12 mm")),
    Sketcher.Constraint("DistanceY", 10, 3, 9, 3, Q("38 mm")),
    Sketcher.Constraint("DistanceX", 13, 3, 14, 3, Q("309 mm")),
    Sketcher.Constraint("DistanceX", 16, 3, 14, 3, Q("29 mm")),
    Sketcher.Constraint("DistanceY", 16, 3, 7, 3, Q("13 mm")),
    Sketcher.Constraint("DistanceX", 17, 3, 16, 3, Q("37 mm")),
    Sketcher.Constraint("DistanceY", 16, 3, 18, 3, Q("72 mm")),
    Sketcher.Constraint("DistanceY", 8, 3, 7, 3, Q("15.4 mm")),
    Sketcher.Constraint("DistanceY", -1, 1, 2, 3, Q("42.15 mm")),
])
doc.recompute()
hole = body.newObject("PartDesign::Hole", "Hole")
hole.Profile = sketch6
hole.ThreadType = "None"
hole.Diameter = 3.4
hole.DepthType = "ThroughAll"
hole.HoleCutType = "Countersink"
hole.HoleCutDiameter = 6.3
hole.HoleCutCountersinkAngle = 90
hole.Reversed = True

sketch7 = body.newObject("Sketcher::SketchObject", "Sketch006")
sketch7.AttachmentSupport = (doc.getObject("XY_Plane"), [""])
sketch7.MapMode = "FlatFace"
sketch7.AttachmentOffset = App.Placement(V(0, 0, 127), App.Rotation())
sketch7.addGeometry([
    Part.Circle(V(166.5, -9, 0), V(0, 0, 1), 1.7),
    Part.Circle(V(178.5, -33, 0), V(0, 0, 1), 1.7),
    Part.Circle(V(-178.5, -33, 0), V(0, 0, 1), 1.7),
    Part.Circle(V(-166.5, -9, 0), V(0, 0, 1), 1.7),
], False)
sketch7.addConstraint([
    Sketcher.Constraint("Equal", 0, 1),
    Sketcher.Constraint("Equal", 1, 2),
    Sketcher.Constraint("Equal", 2, 3),
    Sketcher.Constraint("Symmetric", 1, 3, 2, 3, -2),
    Sketcher.Constraint("Symmetric", 0, 3, 3, 3, -2),
    Sketcher.Constraint("Diameter", 0, Q("3.4 mm")),
    Sketcher.Constraint("DistanceY", 0, 3, -1, 1, Q("9 mm")),
    Sketcher.Constraint("DistanceY", 1, 3, -1, 1, Q("33 mm")),
    Sketcher.Constraint("DistanceX", 0, 3, 1, 3, Q("12 mm")),
    Sketcher.Constraint("DistanceX", 2, 3, 0, 3, Q("345 mm")),
])
doc.recompute()
hole2 = body.newObject("PartDesign::Hole", "Hole001")
hole2.Profile = sketch7
hole2.ThreadType = "None"
hole2.Diameter = 3.4
hole2.DepthType = "Dimension"
hole2.Depth = 10
hole2.DrillPoint = "Angled"
hole2.DrillPointAngle = 118
hole2.HoleCutType = "Countersink"
hole2.HoleCutDiameter = 6.3
hole2.HoleCutCountersinkAngle = 90

sketch8 = body.newObject("Sketcher::SketchObject", "Sketch007")
sketch8.AttachmentSupport = (doc.getObject("XY_Plane"), [""])
sketch8.MapMode = "FlatFace"
sketch8.AttachmentOffset = App.Placement(V(0, 0, -127), App.Rotation())
sketch8.addGeometry([
    Part.Circle(V(166.5, -9, 0), V(0, 0, 1), 1.7),
    Part.Circle(V(-178.5, -33, 0), V(0, 0, 1), 1.7),
    Part.Circle(V(-166.5, -9, 0), V(0, 0, 1), 1.7),
    Part.Circle(V(178.5, -33, 0), V(0, 0, 1), 1.7),
], False)
sketch8.addConstraint([
    Sketcher.Constraint("Equal", 0, 1),
    Sketcher.Constraint("Equal", 1, 2),
    Sketcher.Constraint("Equal", 2, 3),
    Sketcher.Constraint("Symmetric", 0, 3, 2, 3, -2),
    Sketcher.Constraint("Symmetric", 1, 3, 3, 3, -2),
    Sketcher.Constraint("Diameter", 0, Q("3.4 mm")),
    Sketcher.Constraint("DistanceY", 0, 3, -1, 1, Q("9 mm")),
    Sketcher.Constraint("DistanceY", 1, 3, -1, 1, Q("33 mm")),
    Sketcher.Constraint("DistanceX", 1, 3, 0, 3, Q("345 mm")),
    Sketcher.Constraint("DistanceX", 1, 3, 2, 3, Q("12 mm")),
])
doc.recompute()
hole3 = body.newObject("PartDesign::Hole", "Hole002")
hole3.Profile = sketch8
hole3.ThreadType = "None"
hole3.Diameter = 3.4
hole3.DepthType = "Dimension"
hole3.Depth = 10
hole3.DrillPoint = "Angled"
hole3.DrillPointAngle = 118
hole3.HoleCutType = "Countersink"
hole3.HoleCutDiameter = 6.3
hole3.HoleCutCountersinkAngle = 90
hole3.Reversed = True

doc.recompute()
